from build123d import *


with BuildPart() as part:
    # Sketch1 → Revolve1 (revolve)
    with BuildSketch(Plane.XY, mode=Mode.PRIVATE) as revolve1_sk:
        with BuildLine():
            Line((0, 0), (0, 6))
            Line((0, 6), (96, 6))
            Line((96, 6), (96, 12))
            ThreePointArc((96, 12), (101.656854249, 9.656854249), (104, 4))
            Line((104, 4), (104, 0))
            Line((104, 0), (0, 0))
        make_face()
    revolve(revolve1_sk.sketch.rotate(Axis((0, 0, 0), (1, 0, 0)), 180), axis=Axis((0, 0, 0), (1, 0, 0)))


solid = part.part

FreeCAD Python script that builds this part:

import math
import FreeCAD as App
import Part
import Sketcher
from FreeCAD import Vector

doc = App.newDocument("Part")
body = doc.addObject("PartDesign::Body", "Body")

# Sketch on XY plane
sketch1 = body.newObject("Sketcher::SketchObject", "Sketch")
sketch1.AttachmentSupport = (doc.getObject("XY_Plane"), [""])
sketch1.MapMode = "FlatFace"
sketch1.addGeometry([
    Part.LineSegment(Vector(0, 6, 0), Vector(0, 0, 0)),  # 0
    Part.LineSegment(Vector(0, 0, 0), Vector(104, 0, 0)),  # 1
    Part.LineSegment(Vector(104, 0, 0), Vector(104, 4, 0)),  # 2
    Part.ArcOfCircle(Part.Circle(Vector(96, 4, 0), Vector(0, 0, 1), 8), math.radians(0), math.radians(90)),  # 3
    Part.LineSegment(Vector(96, 12, 0), Vector(96, 6, 0)),  # 4
    Part.LineSegment(Vector(96, 6, 0), Vector(0, 6, 0)),  # 5
], False)
sketch1.addConstraint([
    Sketcher.Constraint("Coincident", 0, 2, 1, 1),
    Sketcher.Constraint("Coincident", 1, 2, 2, 1),
    Sketcher.Constraint("Tangent", 2, 2, 3, 1),
    Sketcher.Constraint("Coincident", 3, 2, 4, 1),
    Sketcher.Constraint("Coincident", 4, 2, 5, 1),
    Sketcher.Constraint("Coincident", 5, 2, 0, 1),
    Sketcher.Constraint("Vertical", 0),
    Sketcher.Constraint("Horizontal", 1),
    Sketcher.Constraint("Vertical", 2),
    Sketcher.Constraint("Vertical", 4),
    Sketcher.Constraint("Horizontal", 5),
    Sketcher.Constraint("Coincident", 0, 2, -1, 1),
    Sketcher.Constraint("Equal", 0, 4),
    Sketcher.Constraint("Radius", 3, 8.0),
    Sketcher.Constraint("DistanceX", 1, 1, 1, 2, 104.0),
    Sketcher.Constraint("DistanceX", 5, 2, 5, 1, 96.0),
    Sketcher.Constraint("DistanceY", 0, 2, 0, 1, 6.0),
])
revolution = body.newObject("PartDesign::Revolution", "Revolution")
revolution.Profile = sketch1
revolution.ReferenceAxis = (sketch1, ["H_Axis"])
revolution.Angle = 360

doc.recompute()
